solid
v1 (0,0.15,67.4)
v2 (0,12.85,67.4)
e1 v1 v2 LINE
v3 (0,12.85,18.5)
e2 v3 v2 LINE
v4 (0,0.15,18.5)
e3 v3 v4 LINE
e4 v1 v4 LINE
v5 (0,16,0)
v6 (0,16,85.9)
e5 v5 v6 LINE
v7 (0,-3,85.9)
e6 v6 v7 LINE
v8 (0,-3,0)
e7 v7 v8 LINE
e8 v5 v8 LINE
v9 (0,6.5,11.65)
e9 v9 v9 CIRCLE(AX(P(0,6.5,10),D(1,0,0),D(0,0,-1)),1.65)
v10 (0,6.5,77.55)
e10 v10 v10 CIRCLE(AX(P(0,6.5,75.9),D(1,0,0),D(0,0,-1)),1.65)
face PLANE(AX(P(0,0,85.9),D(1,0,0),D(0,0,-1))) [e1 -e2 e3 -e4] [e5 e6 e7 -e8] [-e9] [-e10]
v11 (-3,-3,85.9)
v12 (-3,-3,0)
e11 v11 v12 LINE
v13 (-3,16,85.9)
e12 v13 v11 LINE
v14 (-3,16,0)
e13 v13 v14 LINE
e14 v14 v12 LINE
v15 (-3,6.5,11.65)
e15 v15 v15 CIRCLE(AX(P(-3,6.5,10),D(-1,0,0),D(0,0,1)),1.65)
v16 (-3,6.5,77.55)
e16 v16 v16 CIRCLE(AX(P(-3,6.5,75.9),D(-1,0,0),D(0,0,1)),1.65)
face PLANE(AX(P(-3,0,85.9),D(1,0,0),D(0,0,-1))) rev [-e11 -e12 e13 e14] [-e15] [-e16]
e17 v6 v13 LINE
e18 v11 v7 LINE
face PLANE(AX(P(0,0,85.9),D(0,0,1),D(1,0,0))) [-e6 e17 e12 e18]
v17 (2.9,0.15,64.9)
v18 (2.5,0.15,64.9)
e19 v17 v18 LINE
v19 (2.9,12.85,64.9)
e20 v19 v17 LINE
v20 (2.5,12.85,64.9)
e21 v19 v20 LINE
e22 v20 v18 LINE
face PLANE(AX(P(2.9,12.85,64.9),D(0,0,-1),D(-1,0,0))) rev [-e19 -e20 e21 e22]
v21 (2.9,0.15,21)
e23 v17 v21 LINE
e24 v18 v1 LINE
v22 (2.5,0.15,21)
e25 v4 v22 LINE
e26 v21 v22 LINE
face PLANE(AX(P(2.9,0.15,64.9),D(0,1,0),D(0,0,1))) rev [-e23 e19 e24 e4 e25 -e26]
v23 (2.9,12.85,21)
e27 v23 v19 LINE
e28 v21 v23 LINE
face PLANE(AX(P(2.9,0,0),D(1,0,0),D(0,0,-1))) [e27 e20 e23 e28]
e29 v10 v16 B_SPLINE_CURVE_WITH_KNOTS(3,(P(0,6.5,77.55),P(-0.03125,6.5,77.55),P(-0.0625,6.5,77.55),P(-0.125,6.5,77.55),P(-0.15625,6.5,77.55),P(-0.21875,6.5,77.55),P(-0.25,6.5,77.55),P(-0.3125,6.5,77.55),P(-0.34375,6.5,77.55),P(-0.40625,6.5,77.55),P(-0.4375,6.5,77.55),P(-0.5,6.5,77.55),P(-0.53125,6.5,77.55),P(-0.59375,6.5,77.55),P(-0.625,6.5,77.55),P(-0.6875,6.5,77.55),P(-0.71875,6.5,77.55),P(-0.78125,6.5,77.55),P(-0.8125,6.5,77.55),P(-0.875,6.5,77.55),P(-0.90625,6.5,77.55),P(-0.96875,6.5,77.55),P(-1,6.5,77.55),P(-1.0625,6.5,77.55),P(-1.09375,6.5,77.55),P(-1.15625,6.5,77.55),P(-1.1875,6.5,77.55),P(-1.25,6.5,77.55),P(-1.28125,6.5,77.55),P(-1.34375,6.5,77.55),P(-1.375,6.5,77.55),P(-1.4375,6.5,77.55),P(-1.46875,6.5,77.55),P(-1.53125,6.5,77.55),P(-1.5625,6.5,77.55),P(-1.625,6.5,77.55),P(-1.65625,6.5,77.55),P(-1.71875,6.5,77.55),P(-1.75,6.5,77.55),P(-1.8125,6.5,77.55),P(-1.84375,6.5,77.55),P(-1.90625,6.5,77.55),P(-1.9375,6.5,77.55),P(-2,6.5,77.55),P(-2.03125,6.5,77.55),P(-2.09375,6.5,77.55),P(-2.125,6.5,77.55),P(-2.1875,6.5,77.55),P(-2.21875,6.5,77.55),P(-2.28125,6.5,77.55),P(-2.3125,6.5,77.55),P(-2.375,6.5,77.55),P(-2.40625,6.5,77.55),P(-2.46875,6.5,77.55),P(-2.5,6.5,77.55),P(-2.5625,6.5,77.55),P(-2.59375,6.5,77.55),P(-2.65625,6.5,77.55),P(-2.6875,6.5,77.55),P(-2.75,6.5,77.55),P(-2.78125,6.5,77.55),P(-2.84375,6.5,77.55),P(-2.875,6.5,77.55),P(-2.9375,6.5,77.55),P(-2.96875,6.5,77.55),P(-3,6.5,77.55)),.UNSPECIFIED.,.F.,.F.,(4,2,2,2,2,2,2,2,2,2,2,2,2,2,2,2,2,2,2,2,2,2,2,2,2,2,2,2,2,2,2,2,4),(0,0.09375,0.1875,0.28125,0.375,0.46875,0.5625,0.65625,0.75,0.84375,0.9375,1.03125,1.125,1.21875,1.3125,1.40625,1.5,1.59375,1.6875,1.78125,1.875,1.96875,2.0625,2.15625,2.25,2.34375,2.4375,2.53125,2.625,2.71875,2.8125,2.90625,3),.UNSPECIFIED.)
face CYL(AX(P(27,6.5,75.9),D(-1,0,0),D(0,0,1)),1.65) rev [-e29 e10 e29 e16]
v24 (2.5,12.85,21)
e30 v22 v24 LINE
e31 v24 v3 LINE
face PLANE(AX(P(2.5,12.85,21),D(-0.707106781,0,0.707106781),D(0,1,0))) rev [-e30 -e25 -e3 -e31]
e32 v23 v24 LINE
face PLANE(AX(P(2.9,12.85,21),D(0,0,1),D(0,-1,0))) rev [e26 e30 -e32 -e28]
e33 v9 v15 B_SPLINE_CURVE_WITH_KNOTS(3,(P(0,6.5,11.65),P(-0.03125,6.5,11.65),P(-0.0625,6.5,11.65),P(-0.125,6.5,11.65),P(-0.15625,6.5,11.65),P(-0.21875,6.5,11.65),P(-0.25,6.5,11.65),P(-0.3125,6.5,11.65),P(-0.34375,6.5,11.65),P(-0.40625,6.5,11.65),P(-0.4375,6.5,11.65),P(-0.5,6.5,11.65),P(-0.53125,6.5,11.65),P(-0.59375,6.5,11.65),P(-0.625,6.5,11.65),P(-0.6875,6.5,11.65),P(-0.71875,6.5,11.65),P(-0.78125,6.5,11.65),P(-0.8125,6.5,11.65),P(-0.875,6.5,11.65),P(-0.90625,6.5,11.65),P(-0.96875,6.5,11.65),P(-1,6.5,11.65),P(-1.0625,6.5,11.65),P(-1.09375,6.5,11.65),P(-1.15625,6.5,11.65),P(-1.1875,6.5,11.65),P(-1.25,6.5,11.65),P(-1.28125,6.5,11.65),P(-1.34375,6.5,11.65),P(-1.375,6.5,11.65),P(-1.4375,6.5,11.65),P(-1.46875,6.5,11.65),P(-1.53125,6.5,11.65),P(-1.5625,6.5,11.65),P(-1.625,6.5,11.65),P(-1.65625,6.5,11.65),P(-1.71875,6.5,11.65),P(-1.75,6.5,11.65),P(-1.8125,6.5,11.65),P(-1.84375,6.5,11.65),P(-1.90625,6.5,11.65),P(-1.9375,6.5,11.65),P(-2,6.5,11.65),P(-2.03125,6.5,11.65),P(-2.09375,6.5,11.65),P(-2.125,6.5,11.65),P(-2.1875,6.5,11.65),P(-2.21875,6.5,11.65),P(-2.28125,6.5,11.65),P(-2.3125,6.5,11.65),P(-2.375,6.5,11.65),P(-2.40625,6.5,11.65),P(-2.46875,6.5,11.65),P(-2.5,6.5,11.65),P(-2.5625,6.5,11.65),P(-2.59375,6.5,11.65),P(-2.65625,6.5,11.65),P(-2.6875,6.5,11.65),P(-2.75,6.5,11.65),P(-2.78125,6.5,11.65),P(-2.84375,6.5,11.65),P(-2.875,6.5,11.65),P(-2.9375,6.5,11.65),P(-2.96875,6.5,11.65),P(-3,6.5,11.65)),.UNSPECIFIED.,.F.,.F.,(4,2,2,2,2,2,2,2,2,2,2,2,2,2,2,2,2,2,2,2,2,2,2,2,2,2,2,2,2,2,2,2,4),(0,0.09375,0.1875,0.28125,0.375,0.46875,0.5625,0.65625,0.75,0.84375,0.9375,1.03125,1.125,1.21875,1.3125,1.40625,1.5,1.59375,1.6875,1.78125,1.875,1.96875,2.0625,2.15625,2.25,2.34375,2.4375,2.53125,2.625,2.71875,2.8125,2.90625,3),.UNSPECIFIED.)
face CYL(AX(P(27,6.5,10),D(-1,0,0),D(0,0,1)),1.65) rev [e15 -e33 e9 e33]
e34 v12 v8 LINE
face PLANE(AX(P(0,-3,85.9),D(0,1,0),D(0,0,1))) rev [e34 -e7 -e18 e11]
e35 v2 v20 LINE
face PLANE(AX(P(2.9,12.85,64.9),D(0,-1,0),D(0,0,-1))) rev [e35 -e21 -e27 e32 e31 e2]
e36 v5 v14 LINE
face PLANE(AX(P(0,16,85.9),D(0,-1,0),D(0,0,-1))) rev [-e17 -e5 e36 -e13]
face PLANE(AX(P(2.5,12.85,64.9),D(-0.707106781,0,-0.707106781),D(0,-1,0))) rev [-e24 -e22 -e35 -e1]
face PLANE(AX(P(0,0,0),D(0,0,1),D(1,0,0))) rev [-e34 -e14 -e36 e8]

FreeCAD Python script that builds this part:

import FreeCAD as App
import Part
import Sketcher

V = App.Vector
Q = App.Units.Quantity


def edges_at(feature, points):
    """Names of the edges that pass closest to the given points."""
    edges = feature.Shape.Edges
    near = lambda p: min(range(len(edges)), key=lambda i: edges[i].distToShape(Part.Vertex(*p))[0])
    return sorted({f"Edge{near(p) + 1}" for p in points})


def add_polygon(sketch, points):
    """Adds a closed chain of lines whose ends are joined by coincident constraints."""
    first, n = sketch.GeometryCount, len(points)
    for a, b in zip(points, points[1:] + points[:1]):
        sketch.addGeometry(Part.LineSegment(App.Vector(*a, 0), App.Vector(*b, 0)), False)
    for i in range(n):
        sketch.addConstraint(Sketcher.Constraint("Coincident", first + i, 2, first + (i + 1) % n, 1))

doc = App.newDocument("Part")
body = doc.addObject("PartDesign::Body", "Body")

# Sketch on XY plane
sketch1 = body.newObject("Sketcher::SketchObject", "Sketch")
sketch1.AttachmentSupport = (doc.getObject("XY_Plane"), [""])
sketch1.MapMode = "FlatFace"
add_polygon(sketch1, [(-3, 16), (-3, -3), (16, -3), (16, 16)])  # lines 0-3
add_polygon(sketch1, [(13, 0), (0, 0), (0, 13), (13, 13)])  # lines 4-7
sketch1.addConstraint(Sketcher.Constraint("Vertical", 0))
sketch1.addConstraint(Sketcher.Constraint("Horizontal", 1))
sketch1.addConstraint(Sketcher.Constraint("Vertical", 2))
sketch1.addConstraint(Sketcher.Constraint("Horizontal", 3))
sketch1.addConstraint(Sketcher.Constraint("Horizontal", 4))
sketch1.addConstraint(Sketcher.Constraint("Vertical", 5))
sketch1.addConstraint(Sketcher.Constraint("Horizontal", 6))
sketch1.addConstraint(Sketcher.Constraint("Vertical", 7))
sketch1.addConstraint(Sketcher.Constraint("Coincident", 4, 2, -1, 1))
sketch1.addConstraint(Sketcher.Constraint("Equal", 3, 0))
sketch1.addConstraint(Sketcher.Constraint("Equal", 6, 5))
sketch1.addConstraint(Sketcher.Constraint("DistanceX", 1, 1, 1, 2, Q("19 mm")))
sketch1.addConstraint(Sketcher.Constraint("DistanceX", 4, 2, 4, 1, Q("13 mm")))
sketch1.addConstraint(Sketcher.Constraint("DistanceX", 0, 2, -1, 1, Q("3 mm")))
sketch1.addConstraint(Sketcher.Constraint("DistanceY", 0, 2, -1, 1, Q("3 mm")))
pad1 = body.newObject("PartDesign::Pad", "Pad")
pad1.Profile = sketch1
pad1.Length = 85.9

# Sketch on YZ plane
sketch2 = body.newObject("Sketcher::SketchObject", "Sketch001")
sketch2.AttachmentSupport = (doc.getObject("YZ_Plane"), [""])
sketch2.MapMode = "FlatFace"
sketch2.AttachmentOffset = App.Placement(V(0, 0, -3), App.Rotation())
sketch2.addGeometry(Part.Circle(V(6.5, 10, 0), V(0, 0, 1), 1.6), False)
sketch2.addGeometry(Part.Circle(V(6.5, 75.9, 0), V(0, 0, 1), 1.6), False)
sketch2.addConstraint(Sketcher.Constraint("Equal", 0, 1))
sketch2.addConstraint(Sketcher.Constraint("Vertical", 0, 3, 1, 3))
sketch2.addConstraint(Sketcher.Constraint("Diameter", 0, Q("3.3 mm")))
sketch2.addConstraint(Sketcher.Constraint("DistanceY", -1, 1, 0, 3, Q("10 mm")))
sketch2.addConstraint(Sketcher.Constraint("DistanceX", -1, 1, 0, 3, Q("6.5 mm")))
sketch2.addConstraint(Sketcher.Constraint("DistanceY", -1, 1, 1, 3, Q("75.9 mm")))
pocket1 = body.newObject("PartDesign::Pocket", "Pocket")
pocket1.Profile = sketch2
pocket1.Length = 30
pocket1.Reversed = True

# Sketch on YZ plane
sketch3 = body.newObject("Sketcher::SketchObject", "Sketch002")
sketch3.AttachmentSupport = (doc.getObject("YZ_Plane"), [""])
sketch3.MapMode = "FlatFace"
sketch3.AttachmentOffset = App.Placement(V(0, 0, 16), App.Rotation())
add_polygon(sketch3, [(16, 86), (-3, 86), (-3, 0), (16, 0)])  # lines 0-3
sketch3.addConstraint(Sketcher.Constraint("Horizontal", 0))
sketch3.addConstraint(Sketcher.Constraint("Vertical", 1))
sketch3.addConstraint(Sketcher.Constraint("Horizontal", 2))
sketch3.addConstraint(Sketcher.Constraint("Vertical", 3))
sketch3.addConstraint(Sketcher.Constraint("PointOnObject", 1, 2, -1))
sketch3.addConstraint(Sketcher.Constraint("DistanceX", 0, 2, 0, 1, Q("19 mm")))
sketch3.addConstraint(Sketcher.Constraint("DistanceY", 1, 2, 1, 1, Q("85.9 mm")))
sketch3.addConstraint(Sketcher.Constraint("DistanceX", 0, 2, -1, 1, Q("3 mm")))
pocket2 = body.newObject("PartDesign::Pocket", "Pocket001")
pocket2.Profile = sketch3
pocket2.Length = 16

# Sketch on YZ plane
sketch4 = body.newObject("Sketcher::SketchObject", "Sketch003")
sketch4.AttachmentSupport = (doc.getObject("YZ_Plane"), [""])
sketch4.MapMode = "FlatFace"
add_polygon(sketch4, [(13, 65), (0, 65), (0, 21), (13, 21)])  # lines 0-3
sketch4.addConstraint(Sketcher.Constraint("Horizontal", 0))
sketch4.addConstraint(Sketcher.Constraint("Vertical", 1))
sketch4.addConstraint(Sketcher.Constraint("Horizontal", 2))
sketch4.addConstraint(Sketcher.Constraint("Vertical", 3))
sketch4.addConstraint(Sketcher.Constraint("DistanceX", 0, 2, 0, 1, Q("12.7 mm")))
sketch4.addConstraint(Sketcher.Constraint("DistanceY", 1, 2, 1, 1, Q("43.9 mm")))
sketch4.addConstraint(Sketcher.Constraint("DistanceY", -1, 1, 1, 2, Q("21 mm")))
sketch4.addConstraint(Sketcher.Constraint("DistanceX", -1, 1, 0, 2, Q("0.15 mm")))
pad2 = body.newObject("PartDesign::Pad", "Pad001")
pad2.Profile = sketch4
pad2.Length = 2.9
doc.recompute()

chamfer = body.newObject("PartDesign::Chamfer", "Chamfer")
chamfer.Base = (pad2, edges_at(pad2, [(0, 6.5, 64.9), (0, 6.5, 21)]))
chamfer.Size = 2.5

doc.recompute()
